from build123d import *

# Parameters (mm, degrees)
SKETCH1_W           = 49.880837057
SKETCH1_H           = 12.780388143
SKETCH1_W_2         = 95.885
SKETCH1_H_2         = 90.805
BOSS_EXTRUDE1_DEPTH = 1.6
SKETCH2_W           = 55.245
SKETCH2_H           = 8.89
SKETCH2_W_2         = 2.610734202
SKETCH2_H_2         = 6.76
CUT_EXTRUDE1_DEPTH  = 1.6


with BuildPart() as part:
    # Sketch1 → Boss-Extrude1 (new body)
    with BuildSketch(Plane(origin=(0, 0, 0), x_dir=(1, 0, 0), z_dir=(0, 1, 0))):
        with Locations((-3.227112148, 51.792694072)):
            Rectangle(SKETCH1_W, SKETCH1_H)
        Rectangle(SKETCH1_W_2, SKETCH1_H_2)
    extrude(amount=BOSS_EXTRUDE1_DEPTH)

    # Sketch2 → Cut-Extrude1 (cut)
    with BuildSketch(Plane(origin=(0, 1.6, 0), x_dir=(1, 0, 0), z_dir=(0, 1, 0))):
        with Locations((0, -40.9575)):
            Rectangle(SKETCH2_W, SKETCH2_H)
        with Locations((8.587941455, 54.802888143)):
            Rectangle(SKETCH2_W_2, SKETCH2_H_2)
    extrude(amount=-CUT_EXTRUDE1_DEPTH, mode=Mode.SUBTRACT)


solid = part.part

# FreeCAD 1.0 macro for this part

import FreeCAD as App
import Part
import Sketcher
Q = App.Units.Quantity

doc = App.newDocument("Part")
body = doc.addObject("PartDesign::Body", "Body")

sketch1 = body.newObject("Sketcher::SketchObject", "Sketch")
sketch1.AttachmentSupport = (doc.getObject("XZ_Plane"), [""])
sketch1.MapMode = "FlatFace"
sketch1.addGeometry([
    Part.LineSegment(App.Vector(-28.167531, -58.182888, 0), App.Vector(-28.167531, -45.4025, 0)),
    Part.LineSegment(App.Vector(-28.167531, -45.4025, 0), App.Vector(-47.9425, -45.4025, 0)),
    Part.LineSegment(App.Vector(-47.9425, -45.4025, 0), App.Vector(-47.9425, 45.4025, 0)),
    Part.LineSegment(App.Vector(-47.9425, 45.4025, 0), App.Vector(47.9425, 45.4025, 0)),
    Part.LineSegment(App.Vector(47.9425, 45.4025, 0), App.Vector(47.9425, -45.4025, 0)),
    Part.LineSegment(App.Vector(47.9425, -45.4025, 0), App.Vector(21.713306, -45.4025, 0)),
    Part.LineSegment(App.Vector(21.713306, -45.4025, 0), App.Vector(21.713306, -58.182888, 0)),
    Part.LineSegment(App.Vector(21.713306, -58.182888, 0), App.Vector(-28.167531, -58.182888, 0)),
], False)
sketch1.addConstraint([
    Sketcher.Constraint("Coincident", 0, 2, 1, 1),
    Sketcher.Constraint("Coincident", 1, 2, 2, 1),
    Sketcher.Constraint("Coincident", 2, 2, 3, 1),
    Sketcher.Constraint("Coincident", 3, 2, 4, 1),
    Sketcher.Constraint("Coincident", 4, 2, 5, 1),
    Sketcher.Constraint("Coincident", 5, 2, 6, 1),
    Sketcher.Constraint("Coincident", 6, 2, 7, 1),
    Sketcher.Constraint("Coincident", 7, 2, 0, 1),
    Sketcher.Constraint("Vertical", 0),
    Sketcher.Constraint("Horizontal", 1),
    Sketcher.Constraint("Vertical", 2),
    Sketcher.Constraint("Horizontal", 3),
    Sketcher.Constraint("Vertical", 4),
    Sketcher.Constraint("Horizontal", 5),
    Sketcher.Constraint("Vertical", 6),
    Sketcher.Constraint("Horizontal", 7),
    Sketcher.Constraint("Symmetric", 1, 2, 3, 2, -1, 1),
    Sketcher.Constraint("Horizontal", 1, 2, 4, 2),
    Sketcher.Constraint("DistanceX", 3, 1, 3, 2, Q("3.775 in")),
    Sketcher.Constraint("DistanceY", 2, 1, 2, 2, Q("3.575 in")),
    Sketcher.Constraint("DistanceX", 1, 2, 1, 1, Q("19.774969 mm")),
    Sketcher.Constraint("DistanceY", 0, 1, 0, 2, Q("12.780388 mm")),
    Sketcher.Constraint("DistanceX", 5, 2, 5, 1, Q("26.229194 mm")),
])
pad1 = body.newObject("PartDesign::Pad", "Pad")
pad1.Profile = sketch1
pad1.Length = 1.6
pad1.Reversed = True

sketch2 = body.newObject("Sketcher::SketchObject", "Sketch001")
sketch2.AttachmentSupport = (doc.getObject("XZ_Plane"), [""])
sketch2.MapMode = "FlatFace"
sketch2.AttachmentOffset = App.Placement(App.Vector(0, 0, -1.6), App.Rotation())
sketch2.addGeometry([
    Part.LineSegment(App.Vector(-27.6225, 36.5125, 0), App.Vector(-27.6225, 45.4025, 0)),
    Part.LineSegment(App.Vector(-27.6225, 45.4025, 0), App.Vector(27.6225, 45.4025, 0)),
    Part.LineSegment(App.Vector(27.6225, 45.4025, 0), App.Vector(27.6225, 36.5125, 0)),
    Part.LineSegment(App.Vector(27.6225, 36.5125, 0), App.Vector(-27.6225, 36.5125, 0)),
    Part.LineSegment(App.Vector(7.282574, -58.182888, 0), App.Vector(7.282574, -51.422888, 0)),
    Part.LineSegment(App.Vector(7.282574, -51.422888, 0), App.Vector(9.893309, -51.422888, 0)),
    Part.LineSegment(App.Vector(9.893309, -51.422888, 0), App.Vector(9.893309, -58.182888, 0)),
    Part.LineSegment(App.Vector(9.893309, -58.182888, 0), App.Vector(7.282574, -58.182888, 0)),
], False)
sketch2.addConstraint([
    Sketcher.Constraint("Coincident", 0, 2, 1, 1),
    Sketcher.Constraint("Coincident", 1, 2, 2, 1),
    Sketcher.Constraint("Coincident", 2, 2, 3, 1),
    Sketcher.Constraint("Coincident", 3, 2, 0, 1),
    Sketcher.Constraint("Coincident", 4, 2, 5, 1),
    Sketcher.Constraint("Coincident", 5, 2, 6, 1),
    Sketcher.Constraint("Coincident", 6, 2, 7, 1),
    Sketcher.Constraint("Coincident", 7, 2, 4, 1),
    Sketcher.Constraint("Vertical", 0),
    Sketcher.Constraint("Horizontal", 1),
    Sketcher.Constraint("Vertical", 2),
    Sketcher.Constraint("Horizontal", 3),
    Sketcher.Constraint("Vertical", 4),
    Sketcher.Constraint("Horizontal", 5),
    Sketcher.Constraint("Vertical", 6),
    Sketcher.Constraint("Horizontal", 7),
    Sketcher.Constraint("DistanceY", 0, 1, 0, 2, Q("0.35 in")),
    Sketcher.Constraint("DistanceX", 1, 1, 1, 2, Q("2.175 in")),
    Sketcher.Constraint("DistanceY", -1, 1, 2, 2, Q("1.4375 in")),
    Sketcher.Constraint("DistanceY", 4, 1, 4, 2, Q("6.76 mm")),
    Sketcher.Constraint("DistanceX", 0, 2, -1, 1, Q("1.0875 in")),
    Sketcher.Constraint("DistanceX", 5, 1, 5, 2, Q("2.610734 mm")),
    Sketcher.Constraint("DistanceY", 4, 2, -1, 1, Q("51.422888 mm")),
    Sketcher.Constraint("DistanceX", -1, 1, 5, 2, Q("9.893309 mm")),
])
pocket1 = body.newObject("PartDesign::Pocket", "Pocket")
pocket1.Profile = sketch2
pocket1.Length = 1.6
pocket1.Reversed = True

doc.recompute()
